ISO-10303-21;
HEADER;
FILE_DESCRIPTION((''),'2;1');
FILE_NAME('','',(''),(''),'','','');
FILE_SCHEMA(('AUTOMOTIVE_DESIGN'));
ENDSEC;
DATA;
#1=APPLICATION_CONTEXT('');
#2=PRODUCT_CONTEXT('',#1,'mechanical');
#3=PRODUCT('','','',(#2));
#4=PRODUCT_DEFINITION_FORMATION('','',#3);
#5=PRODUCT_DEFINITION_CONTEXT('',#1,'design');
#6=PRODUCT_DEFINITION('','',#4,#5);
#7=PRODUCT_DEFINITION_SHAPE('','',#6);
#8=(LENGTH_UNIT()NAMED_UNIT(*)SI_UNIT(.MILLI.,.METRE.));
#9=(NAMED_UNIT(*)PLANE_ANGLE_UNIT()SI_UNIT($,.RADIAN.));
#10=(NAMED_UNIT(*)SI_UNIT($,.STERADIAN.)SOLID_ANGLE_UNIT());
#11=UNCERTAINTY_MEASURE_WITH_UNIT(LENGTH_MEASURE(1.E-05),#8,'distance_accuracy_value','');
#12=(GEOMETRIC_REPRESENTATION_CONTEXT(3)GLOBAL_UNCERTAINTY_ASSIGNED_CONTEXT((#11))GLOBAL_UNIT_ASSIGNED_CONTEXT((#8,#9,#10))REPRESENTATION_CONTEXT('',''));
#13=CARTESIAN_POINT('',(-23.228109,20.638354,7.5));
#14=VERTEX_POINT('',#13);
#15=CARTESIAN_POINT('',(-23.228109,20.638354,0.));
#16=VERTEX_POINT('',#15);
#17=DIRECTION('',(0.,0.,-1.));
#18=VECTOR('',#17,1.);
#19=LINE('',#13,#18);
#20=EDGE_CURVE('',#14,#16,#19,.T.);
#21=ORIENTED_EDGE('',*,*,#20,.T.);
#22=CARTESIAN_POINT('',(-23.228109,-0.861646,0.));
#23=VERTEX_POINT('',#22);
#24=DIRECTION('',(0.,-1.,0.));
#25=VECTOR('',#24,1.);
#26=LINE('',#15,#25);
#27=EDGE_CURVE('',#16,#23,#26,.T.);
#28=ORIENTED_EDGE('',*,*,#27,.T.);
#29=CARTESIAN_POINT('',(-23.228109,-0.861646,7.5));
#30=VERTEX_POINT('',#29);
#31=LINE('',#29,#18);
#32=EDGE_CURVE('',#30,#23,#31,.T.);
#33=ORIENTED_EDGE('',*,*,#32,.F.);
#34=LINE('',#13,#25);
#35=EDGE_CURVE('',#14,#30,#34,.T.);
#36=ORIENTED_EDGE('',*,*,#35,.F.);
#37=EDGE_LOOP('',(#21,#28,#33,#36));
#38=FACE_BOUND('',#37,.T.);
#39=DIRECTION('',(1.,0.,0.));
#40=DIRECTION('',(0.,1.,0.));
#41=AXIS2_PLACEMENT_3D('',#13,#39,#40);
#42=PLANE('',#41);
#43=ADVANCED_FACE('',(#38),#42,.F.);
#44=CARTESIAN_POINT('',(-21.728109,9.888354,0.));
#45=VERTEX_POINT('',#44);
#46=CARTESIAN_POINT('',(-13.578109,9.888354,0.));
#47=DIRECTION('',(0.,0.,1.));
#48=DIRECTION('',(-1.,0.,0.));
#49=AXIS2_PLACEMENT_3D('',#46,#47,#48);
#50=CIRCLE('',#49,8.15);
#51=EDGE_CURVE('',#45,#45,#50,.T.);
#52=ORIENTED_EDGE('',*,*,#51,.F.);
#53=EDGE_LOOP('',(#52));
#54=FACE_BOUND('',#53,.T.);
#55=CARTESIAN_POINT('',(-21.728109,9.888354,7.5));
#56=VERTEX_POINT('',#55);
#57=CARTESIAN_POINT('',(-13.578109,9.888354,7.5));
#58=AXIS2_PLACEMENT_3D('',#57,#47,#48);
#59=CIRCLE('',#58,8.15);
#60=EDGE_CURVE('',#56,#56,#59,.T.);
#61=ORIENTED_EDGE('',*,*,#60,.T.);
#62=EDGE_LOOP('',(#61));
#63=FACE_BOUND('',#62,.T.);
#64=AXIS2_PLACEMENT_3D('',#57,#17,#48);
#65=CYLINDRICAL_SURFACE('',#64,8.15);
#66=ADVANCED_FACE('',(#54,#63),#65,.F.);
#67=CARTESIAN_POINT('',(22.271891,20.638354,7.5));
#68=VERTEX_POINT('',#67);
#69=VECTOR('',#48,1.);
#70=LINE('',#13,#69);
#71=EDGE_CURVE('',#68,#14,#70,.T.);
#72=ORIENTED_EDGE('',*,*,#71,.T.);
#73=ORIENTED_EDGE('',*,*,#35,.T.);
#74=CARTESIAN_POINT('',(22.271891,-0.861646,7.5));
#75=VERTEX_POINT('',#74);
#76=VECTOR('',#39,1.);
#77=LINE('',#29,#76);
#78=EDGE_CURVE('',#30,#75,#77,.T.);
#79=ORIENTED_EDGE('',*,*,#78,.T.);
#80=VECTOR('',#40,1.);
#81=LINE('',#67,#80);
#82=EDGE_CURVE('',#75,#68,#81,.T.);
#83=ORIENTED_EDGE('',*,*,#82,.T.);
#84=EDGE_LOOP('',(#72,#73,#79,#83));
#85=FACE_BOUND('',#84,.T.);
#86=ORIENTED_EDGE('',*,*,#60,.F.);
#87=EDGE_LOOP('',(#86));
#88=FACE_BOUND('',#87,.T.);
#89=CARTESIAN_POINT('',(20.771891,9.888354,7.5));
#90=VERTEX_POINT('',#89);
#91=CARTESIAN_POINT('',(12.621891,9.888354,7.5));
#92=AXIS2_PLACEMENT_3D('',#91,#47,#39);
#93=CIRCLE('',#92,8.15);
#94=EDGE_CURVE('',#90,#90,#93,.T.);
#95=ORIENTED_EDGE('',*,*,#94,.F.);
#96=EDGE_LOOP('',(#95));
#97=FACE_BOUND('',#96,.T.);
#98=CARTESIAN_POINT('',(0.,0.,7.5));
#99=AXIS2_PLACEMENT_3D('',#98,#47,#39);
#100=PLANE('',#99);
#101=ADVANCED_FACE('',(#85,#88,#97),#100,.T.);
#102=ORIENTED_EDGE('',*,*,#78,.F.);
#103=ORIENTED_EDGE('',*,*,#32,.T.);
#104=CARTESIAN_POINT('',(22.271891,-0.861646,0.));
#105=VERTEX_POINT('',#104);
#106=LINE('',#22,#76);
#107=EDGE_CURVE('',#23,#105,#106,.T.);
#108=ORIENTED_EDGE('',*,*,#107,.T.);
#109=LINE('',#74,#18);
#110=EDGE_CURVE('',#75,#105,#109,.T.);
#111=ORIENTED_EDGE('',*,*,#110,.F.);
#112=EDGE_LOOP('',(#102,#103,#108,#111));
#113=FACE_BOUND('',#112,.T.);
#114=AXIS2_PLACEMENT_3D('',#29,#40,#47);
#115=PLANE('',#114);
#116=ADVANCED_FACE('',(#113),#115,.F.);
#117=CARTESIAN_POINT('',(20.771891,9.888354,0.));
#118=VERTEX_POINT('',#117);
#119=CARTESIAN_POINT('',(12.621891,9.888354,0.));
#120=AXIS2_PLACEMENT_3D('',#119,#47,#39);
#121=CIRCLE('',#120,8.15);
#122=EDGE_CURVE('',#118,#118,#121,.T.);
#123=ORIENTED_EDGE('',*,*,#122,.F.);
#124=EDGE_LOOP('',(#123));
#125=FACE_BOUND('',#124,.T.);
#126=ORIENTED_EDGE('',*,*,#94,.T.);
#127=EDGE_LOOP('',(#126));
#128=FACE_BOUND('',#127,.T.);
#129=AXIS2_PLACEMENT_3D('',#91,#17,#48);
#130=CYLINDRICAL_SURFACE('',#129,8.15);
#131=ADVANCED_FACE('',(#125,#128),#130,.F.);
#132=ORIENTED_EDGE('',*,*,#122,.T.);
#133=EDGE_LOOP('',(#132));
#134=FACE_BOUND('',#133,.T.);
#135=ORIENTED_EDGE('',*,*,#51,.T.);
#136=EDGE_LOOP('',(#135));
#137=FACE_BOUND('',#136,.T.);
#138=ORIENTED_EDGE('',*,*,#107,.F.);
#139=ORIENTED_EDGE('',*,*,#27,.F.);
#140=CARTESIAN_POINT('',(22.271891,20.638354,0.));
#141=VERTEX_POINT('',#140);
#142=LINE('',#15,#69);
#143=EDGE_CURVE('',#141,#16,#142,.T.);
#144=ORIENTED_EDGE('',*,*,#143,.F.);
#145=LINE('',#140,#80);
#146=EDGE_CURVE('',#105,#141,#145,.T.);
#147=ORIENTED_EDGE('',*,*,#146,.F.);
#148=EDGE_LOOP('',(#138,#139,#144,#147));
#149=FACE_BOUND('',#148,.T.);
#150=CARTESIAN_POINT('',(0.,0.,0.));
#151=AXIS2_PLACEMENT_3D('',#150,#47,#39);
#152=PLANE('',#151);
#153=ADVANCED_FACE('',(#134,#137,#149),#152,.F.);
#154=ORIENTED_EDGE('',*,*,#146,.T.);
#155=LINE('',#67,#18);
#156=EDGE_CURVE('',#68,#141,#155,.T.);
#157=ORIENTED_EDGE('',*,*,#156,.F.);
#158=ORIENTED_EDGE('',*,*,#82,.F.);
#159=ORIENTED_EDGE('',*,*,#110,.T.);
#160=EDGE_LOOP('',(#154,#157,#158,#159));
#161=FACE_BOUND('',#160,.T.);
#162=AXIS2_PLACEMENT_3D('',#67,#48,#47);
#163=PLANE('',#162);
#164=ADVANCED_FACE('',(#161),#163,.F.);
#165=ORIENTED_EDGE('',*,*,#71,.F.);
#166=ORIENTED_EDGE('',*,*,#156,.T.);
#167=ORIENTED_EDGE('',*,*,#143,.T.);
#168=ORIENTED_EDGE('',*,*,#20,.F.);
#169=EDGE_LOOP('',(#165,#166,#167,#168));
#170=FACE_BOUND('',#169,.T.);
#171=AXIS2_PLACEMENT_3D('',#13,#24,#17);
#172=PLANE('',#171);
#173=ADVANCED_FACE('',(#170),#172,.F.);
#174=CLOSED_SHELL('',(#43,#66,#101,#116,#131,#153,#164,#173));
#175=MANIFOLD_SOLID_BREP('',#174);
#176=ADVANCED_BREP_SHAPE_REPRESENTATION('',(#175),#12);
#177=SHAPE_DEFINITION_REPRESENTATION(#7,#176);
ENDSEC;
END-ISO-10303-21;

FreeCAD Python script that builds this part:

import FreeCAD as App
import Part
import Sketcher
from FreeCAD import Vector
Q = App.Units.Quantity

doc = App.newDocument("Part")
body = doc.addObject("PartDesign::Body", "Body")

sketch1 = body.newObject("Sketcher::SketchObject", "Sketch")
sketch1.AttachmentSupport = (doc.getObject("XY_Plane"), [""])
sketch1.MapMode = "FlatFace"
sketch1.addGeometry([
    Part.LineSegment(Vector(-23, 21, 0), Vector(-23, -1, 0)),
    Part.LineSegment(Vector(-23, -1, 0), Vector(22, -1, 0)),
    Part.LineSegment(Vector(22, -1, 0), Vector(22, 21, 0)),
    Part.LineSegment(Vector(22, 21, 0), Vector(-23, 21, 0)),
    Part.Circle(Vector(-14, 10, 0), Vector(0, 0, 1), 8),
    Part.Circle(Vector(13, 10, 0), Vector(0, 0, 1), 8),
], False)
sketch1.addConstraint([
    Sketcher.Constraint("Coincident", 0, 2, 1, 1),
    Sketcher.Constraint("Coincident", 1, 2, 2, 1),
    Sketcher.Constraint("Coincident", 2, 2, 3, 1),
    Sketcher.Constraint("Coincident", 3, 2, 0, 1),
    Sketcher.Constraint("Vertical", 0),
    Sketcher.Constraint("Horizontal", 1),
    Sketcher.Constraint("Vertical", 2),
    Sketcher.Constraint("Horizontal", 3),
    Sketcher.Constraint("Equal", 4, 5),
    Sketcher.Constraint("Horizontal", 4, 3, 5, 3),
    Sketcher.Constraint("Diameter", 4, Q("16.3 mm")),
    Sketcher.Constraint("DistanceX", 1, 1, 1, 2, Q("45.5 mm")),
    Sketcher.Constraint("DistanceY", 0, 2, 0, 1, Q("21.5 mm")),
    Sketcher.Constraint("DistanceX", 4, 3, 5, 3, Q("26.2 mm")),
    Sketcher.Constraint("DistanceX", 0, 2, 4, 3, Q("9.65 mm")),
    Sketcher.Constraint("DistanceY", 0, 2, 4, 3, Q("10.75 mm")),
    Sketcher.Constraint("DistanceX", 4, 3, -1, 1, Q("13.578109 mm")),
    Sketcher.Constraint("DistanceY", -1, 1, 4, 3, Q("9.888354 mm")),
])
pad1 = body.newObject("PartDesign::Pad", "Pad")
pad1.Profile = sketch1
pad1.Length = 7.5

doc.recompute()
